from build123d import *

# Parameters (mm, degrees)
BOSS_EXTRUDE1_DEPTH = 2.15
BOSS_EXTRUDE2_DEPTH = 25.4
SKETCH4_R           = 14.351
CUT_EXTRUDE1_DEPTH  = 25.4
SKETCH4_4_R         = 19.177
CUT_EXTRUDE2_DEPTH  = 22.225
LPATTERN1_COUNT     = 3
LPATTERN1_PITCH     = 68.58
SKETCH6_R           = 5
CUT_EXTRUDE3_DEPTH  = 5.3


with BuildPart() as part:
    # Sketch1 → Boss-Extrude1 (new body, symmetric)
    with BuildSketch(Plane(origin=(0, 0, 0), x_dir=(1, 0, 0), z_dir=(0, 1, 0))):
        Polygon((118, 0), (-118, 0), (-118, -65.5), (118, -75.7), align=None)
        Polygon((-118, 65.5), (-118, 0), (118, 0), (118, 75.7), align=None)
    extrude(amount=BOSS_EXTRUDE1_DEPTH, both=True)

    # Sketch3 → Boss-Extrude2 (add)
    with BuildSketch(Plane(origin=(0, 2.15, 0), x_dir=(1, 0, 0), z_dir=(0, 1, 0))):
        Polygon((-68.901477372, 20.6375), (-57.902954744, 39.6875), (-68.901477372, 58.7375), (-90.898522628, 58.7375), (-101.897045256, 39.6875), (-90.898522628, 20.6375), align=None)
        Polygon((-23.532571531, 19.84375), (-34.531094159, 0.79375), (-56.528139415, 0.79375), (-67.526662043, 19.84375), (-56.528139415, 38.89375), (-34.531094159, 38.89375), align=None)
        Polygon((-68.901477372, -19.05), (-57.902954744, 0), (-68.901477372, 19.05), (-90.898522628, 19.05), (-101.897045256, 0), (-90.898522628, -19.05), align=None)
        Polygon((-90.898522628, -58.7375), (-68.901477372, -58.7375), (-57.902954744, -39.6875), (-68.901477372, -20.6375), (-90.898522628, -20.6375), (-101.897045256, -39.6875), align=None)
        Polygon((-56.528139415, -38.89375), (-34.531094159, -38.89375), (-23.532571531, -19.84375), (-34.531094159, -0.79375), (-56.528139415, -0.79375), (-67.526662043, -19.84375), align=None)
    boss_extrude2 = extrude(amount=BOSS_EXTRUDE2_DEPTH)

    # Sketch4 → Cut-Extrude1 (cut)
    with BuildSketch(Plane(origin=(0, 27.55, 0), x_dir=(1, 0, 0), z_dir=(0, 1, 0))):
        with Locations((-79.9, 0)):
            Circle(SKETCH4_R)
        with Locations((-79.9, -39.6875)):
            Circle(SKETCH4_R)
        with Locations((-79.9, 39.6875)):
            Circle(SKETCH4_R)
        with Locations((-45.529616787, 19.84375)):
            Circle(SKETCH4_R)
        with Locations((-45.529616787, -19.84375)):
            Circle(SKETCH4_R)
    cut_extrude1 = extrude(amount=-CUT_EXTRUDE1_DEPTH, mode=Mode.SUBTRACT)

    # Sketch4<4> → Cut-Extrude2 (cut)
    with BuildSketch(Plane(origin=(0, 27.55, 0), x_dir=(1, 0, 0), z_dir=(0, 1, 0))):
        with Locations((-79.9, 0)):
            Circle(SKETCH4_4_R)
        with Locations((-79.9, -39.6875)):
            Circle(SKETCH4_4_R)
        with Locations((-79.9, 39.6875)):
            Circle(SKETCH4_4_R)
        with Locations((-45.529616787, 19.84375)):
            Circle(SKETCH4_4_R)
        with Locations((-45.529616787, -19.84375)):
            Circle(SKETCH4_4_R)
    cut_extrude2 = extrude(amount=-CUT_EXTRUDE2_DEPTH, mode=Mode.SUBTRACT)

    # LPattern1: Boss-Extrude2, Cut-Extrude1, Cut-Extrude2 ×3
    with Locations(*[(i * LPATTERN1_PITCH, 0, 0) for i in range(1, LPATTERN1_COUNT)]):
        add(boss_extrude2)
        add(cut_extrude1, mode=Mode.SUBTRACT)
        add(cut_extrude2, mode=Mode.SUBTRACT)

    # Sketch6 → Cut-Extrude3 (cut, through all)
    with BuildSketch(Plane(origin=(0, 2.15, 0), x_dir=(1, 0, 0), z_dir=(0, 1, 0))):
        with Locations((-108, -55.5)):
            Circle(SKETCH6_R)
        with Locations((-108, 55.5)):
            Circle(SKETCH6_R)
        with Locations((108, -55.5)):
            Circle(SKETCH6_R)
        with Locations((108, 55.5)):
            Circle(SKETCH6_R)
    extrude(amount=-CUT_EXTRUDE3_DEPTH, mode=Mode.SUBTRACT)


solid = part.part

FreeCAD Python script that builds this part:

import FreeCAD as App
import Part
import Sketcher
Q = App.Units.Quantity

doc = App.newDocument("Part")
body = doc.addObject("PartDesign::Body", "Body")

sketch1 = body.newObject("Sketcher::SketchObject", "Sketch")
sketch1.AttachmentSupport = (doc.getObject("XZ_Plane"), [""])
sketch1.MapMode = "FlatFace"
sketch1.addGeometry([
    Part.LineSegment(App.Vector(-118, 66, 0), App.Vector(118, 76, 0)),
    Part.LineSegment(App.Vector(118, 76, 0), App.Vector(118, -76, 0)),
    Part.LineSegment(App.Vector(118, -76, 0), App.Vector(-118, -66, 0)),
    Part.LineSegment(App.Vector(-118, -66, 0), App.Vector(-118, 66, 0)),
], False)
sketch1.addConstraint([
    Sketcher.Constraint("Coincident", 0, 2, 1, 1),
    Sketcher.Constraint("Coincident", 1, 2, 2, 1),
    Sketcher.Constraint("Coincident", 2, 2, 3, 1),
    Sketcher.Constraint("Coincident", 3, 2, 0, 1),
    Sketcher.Constraint("Vertical", 1),
    Sketcher.Constraint("Vertical", 3),
    Sketcher.Constraint("Equal", 0, 2),
    Sketcher.Constraint("DistanceY", 3, 1, 3, 2, Q("131 mm")),
    Sketcher.Constraint("DistanceY", 1, 2, 1, 1, Q("151.4 mm")),
    Sketcher.Constraint("DistanceX", -1, 1, 0, 2, Q("118 mm")),
    Sketcher.Constraint("DistanceX", 2, 2, -1, 1, Q("118 mm")),
    Sketcher.Constraint("DistanceY", -1, 1, 0, 2, Q("75.7 mm")),
])
pad1 = body.newObject("PartDesign::Pad", "Pad")
pad1.Profile = sketch1
pad1.Length = 4.3
pad1.Midplane = True

sketch2 = body.newObject("Sketcher::SketchObject", "Sketch001")
sketch2.AttachmentSupport = (doc.getObject("XZ_Plane"), [""])
sketch2.MapMode = "FlatFace"
sketch2.AttachmentOffset = App.Placement(App.Vector(0, 0, -2.15), App.Rotation())
sketch2.addGeometry([
    Part.LineSegment(App.Vector(-69, -21, 0), App.Vector(-58, -40, 0)),
    Part.LineSegment(App.Vector(-58, -40, 0), App.Vector(-69, -59, 0)),
    Part.LineSegment(App.Vector(-69, -59, 0), App.Vector(-91, -59, 0)),
    Part.LineSegment(App.Vector(-91, -59, 0), App.Vector(-102, -40, 0)),
    Part.LineSegment(App.Vector(-102, -40, 0), App.Vector(-91, -21, 0)),
    Part.LineSegment(App.Vector(-91, -21, 0), App.Vector(-69, -21, 0)),
    Part.LineSegment(App.Vector(-35, -1, 0), App.Vector(-24, -20, 0)),
    Part.LineSegment(App.Vector(-24, -20, 0), App.Vector(-35, -39, 0)),
    Part.LineSegment(App.Vector(-35, -39, 0), App.Vector(-57, -39, 0)),
    Part.LineSegment(App.Vector(-57, -39, 0), App.Vector(-68, -20, 0)),
    Part.LineSegment(App.Vector(-68, -20, 0), App.Vector(-57, -1, 0)),
    Part.LineSegment(App.Vector(-57, -1, 0), App.Vector(-35, -1, 0)),
    Part.LineSegment(App.Vector(-69, 19, 0), App.Vector(-58, 0, 0)),
    Part.LineSegment(App.Vector(-58, 0, 0), App.Vector(-69, -19, 0)),
    Part.LineSegment(App.Vector(-69, -19, 0), App.Vector(-91, -19, 0)),
    Part.LineSegment(App.Vector(-91, -19, 0), App.Vector(-102, 0, 0)),
    Part.LineSegment(App.Vector(-102, 0, 0), App.Vector(-91, 19, 0)),
    Part.LineSegment(App.Vector(-91, 19, 0), App.Vector(-69, 19, 0)),
    Part.LineSegment(App.Vector(-91, 59, 0), App.Vector(-69, 59, 0)),
    Part.LineSegment(App.Vector(-69, 59, 0), App.Vector(-58, 40, 0)),
    Part.LineSegment(App.Vector(-58, 40, 0), App.Vector(-69, 21, 0)),
    Part.LineSegment(App.Vector(-69, 21, 0), App.Vector(-91, 21, 0)),
    Part.LineSegment(App.Vector(-91, 21, 0), App.Vector(-102, 40, 0)),
    Part.LineSegment(App.Vector(-102, 40, 0), App.Vector(-91, 59, 0)),
    Part.LineSegment(App.Vector(-57, 39, 0), App.Vector(-35, 39, 0)),
    Part.LineSegment(App.Vector(-35, 39, 0), App.Vector(-24, 20, 0)),
    Part.LineSegment(App.Vector(-24, 20, 0), App.Vector(-35, 1, 0)),
    Part.LineSegment(App.Vector(-35, 1, 0), App.Vector(-57, 1, 0)),
    Part.LineSegment(App.Vector(-57, 1, 0), App.Vector(-68, 20, 0)),
    Part.LineSegment(App.Vector(-68, 20, 0), App.Vector(-57, 39, 0)),
], False)
sketch2.addConstraint([
    Sketcher.Constraint("Coincident", 0, 2, 1, 1),
    Sketcher.Constraint("Coincident", 1, 2, 2, 1),
    Sketcher.Constraint("Coincident", 2, 2, 3, 1),
    Sketcher.Constraint("Coincident", 3, 2, 4, 1),
    Sketcher.Constraint("Coincident", 4, 2, 5, 1),
    Sketcher.Constraint("Coincident", 5, 2, 0, 1),
    Sketcher.Constraint("Coincident", 6, 2, 7, 1),
    Sketcher.Constraint("Coincident", 7, 2, 8, 1),
    Sketcher.Constraint("Coincident", 8, 2, 9, 1),
    Sketcher.Constraint("Coincident", 9, 2, 10, 1),
    Sketcher.Constraint("Coincident", 10, 2, 11, 1),
    Sketcher.Constraint("Coincident", 11, 2, 6, 1),
    Sketcher.Constraint("Coincident", 12, 2, 13, 1),
    Sketcher.Constraint("Coincident", 13, 2, 14, 1),
    Sketcher.Constraint("Coincident", 14, 2, 15, 1),
    Sketcher.Constraint("Coincident", 15, 2, 16, 1),
    Sketcher.Constraint("Coincident", 16, 2, 17, 1),
    Sketcher.Constraint("Coincident", 17, 2, 12, 1),
    Sketcher.Constraint("Coincident", 18, 2, 19, 1),
    Sketcher.Constraint("Coincident", 19, 2, 20, 1),
    Sketcher.Constraint("Coincident", 20, 2, 21, 1),
    Sketcher.Constraint("Coincident", 21, 2, 22, 1),
    Sketcher.Constraint("Coincident", 22, 2, 23, 1),
    Sketcher.Constraint("Coincident", 23, 2, 18, 1),
    Sketcher.Constraint("Coincident", 24, 2, 25, 1),
    Sketcher.Constraint("Coincident", 25, 2, 26, 1),
    Sketcher.Constraint("Coincident", 26, 2, 27, 1),
    Sketcher.Constraint("Coincident", 27, 2, 28, 1),
    Sketcher.Constraint("Coincident", 28, 2, 29, 1),
    Sketcher.Constraint("Coincident", 29, 2, 24, 1),
    Sketcher.Constraint("Horizontal", 2),
    Sketcher.Constraint("Horizontal", 5),
    Sketcher.Constraint("Horizontal", 8),
    Sketcher.Constraint("Horizontal", 11),
    Sketcher.Constraint("Horizontal", 14),
    Sketcher.Constraint("Horizontal", 17),
    Sketcher.Constraint("Horizontal", 18),
    Sketcher.Constraint("Horizontal", 21),
    Sketcher.Constraint("Horizontal", 24),
    Sketcher.Constraint("Horizontal", 27),
    Sketcher.Constraint("Symmetric", 14, 2, 16, 2, -1),
    Sketcher.Constraint("Symmetric", 1, 2, 18, 2, -1),
    Sketcher.Constraint("Symmetric", 0, 2, 19, 2, -1),
    Sketcher.Constraint("Symmetric", 5, 2, 20, 2, -1),
    Sketcher.Constraint("Symmetric", 3, 2, 22, 2, -1),
    Sketcher.Constraint("Symmetric", 7, 2, 24, 2, -1),
    Sketcher.Constraint("Symmetric", 6, 2, 25, 2, -1),
    Sketcher.Constraint("Symmetric", 11, 2, 26, 2, -1),
    Sketcher.Constraint("Symmetric", 9, 2, 28, 2, -1),
    Sketcher.Constraint("PointOnObject", 12, 2, -1),
    Sketcher.Constraint("PointOnObject", 15, 2, -1),
    Sketcher.Constraint("Parallel", 0, 3),
    Sketcher.Constraint("Parallel", 1, 4),
    Sketcher.Constraint("Parallel", 3, 6),
    Sketcher.Constraint("Parallel", 4, 7),
    Sketcher.Constraint("Parallel", 6, 9),
    Sketcher.Constraint("Parallel", 7, 10),
    Sketcher.Constraint("Parallel", 9, 12),
    Sketcher.Constraint("Parallel", 10, 13),
    Sketcher.Constraint("Parallel", 12, 15),
    Sketcher.Constraint("Parallel", 13, 16),
    Sketcher.Constraint("Parallel", 19, 22),
    Sketcher.Constraint("Parallel", 20, 23),
    Sketcher.Constraint("Parallel", 25, 28),
    Sketcher.Constraint("Parallel", 26, 29),
    Sketcher.Constraint("Horizontal", 0, 2, 3, 2),
    Sketcher.Constraint("Horizontal", 6, 2, 9, 2),
    Sketcher.Constraint("Vertical", 2, 2, 4, 2),
    Sketcher.Constraint("Vertical", 8, 2, 10, 2),
    Sketcher.Constraint("Vertical", 0, 2, 12, 2),
    Sketcher.Constraint("Vertical", 5, 2, 13, 2),
    Sketcher.Constraint("Vertical", 4, 2, 14, 2),
    Sketcher.Constraint("Equal", 5, 8),
    Sketcher.Constraint("Equal", 4, 6),
    Sketcher.Constraint("Angle", 0, Q("-60 deg")),
    Sketcher.Constraint("DistanceY", 2, 2, 4, 2, Q("38.1 mm")),
    Sketcher.Constraint("DistanceY", 0, 2, -1, 1, Q("39.6875 mm")),
    Sketcher.Constraint("DistanceY", 11, 2, 24, 2, Q("39.6875 mm")),
    Sketcher.Constraint("DistanceX", 2, 2, 2, 1, Q("21.997045 mm")),
    Sketcher.Constraint("DistanceX", 6, 2, -1, 1, Q("23.532572 mm")),
    Sketcher.Constraint("DistanceX", 4, 2, 6, 2, Q("67.365951 mm")),
])
pad2 = body.newObject("PartDesign::Pad", "Pad001")
pad2.Profile = sketch2
pad2.Length = 25.4
pad2.Reversed = True

sketch3 = body.newObject("Sketcher::SketchObject", "Sketch002")
sketch3.AttachmentSupport = (doc.getObject("XZ_Plane"), [""])
sketch3.MapMode = "FlatFace"
sketch3.AttachmentOffset = App.Placement(App.Vector(0, 0, -27.55), App.Rotation())
sketch3.addGeometry([
    Part.Circle(App.Vector(-80, 0, 0), App.Vector(0, 0, 1), 14),
    Part.Circle(App.Vector(-80, 40, 0), App.Vector(0, 0, 1), 14),
    Part.Circle(App.Vector(-80, -40, 0), App.Vector(0, 0, 1), 14),
    Part.Circle(App.Vector(-46, -20, 0), App.Vector(0, 0, 1), 14),
    Part.Circle(App.Vector(-46, 20, 0), App.Vector(0, 0, 1), 14),
], False)
sketch3.addConstraint([
    Sketcher.Constraint("Equal", 0, 1),
    Sketcher.Constraint("Equal", 1, 2),
    Sketcher.Constraint("Equal", 2, 3),
    Sketcher.Constraint("Equal", 3, 4),
    Sketcher.Constraint("Symmetric", 1, 3, 2, 3, -1),
    Sketcher.Constraint("Symmetric", 3, 3, 4, 3, -1),
    Sketcher.Constraint("PointOnObject", 0, 3, -1),
    Sketcher.Constraint("Vertical", 0, 3, 1, 3),
    Sketcher.Constraint("Diameter", 0, Q("28.702 mm")),
    Sketcher.Constraint("DistanceX", 0, 3, -1, 1, Q("79.9 mm")),
    Sketcher.Constraint("DistanceY", 2, 3, 1, 3, Q("79.375 mm")),
    Sketcher.Constraint("DistanceY", 3, 3, 4, 3, Q("39.6875 mm")),
    Sketcher.Constraint("DistanceX", 3, 3, -1, 1, Q("45.529617 mm")),
])
pocket1 = body.newObject("PartDesign::Pocket", "Pocket")
pocket1.Profile = sketch3
pocket1.Length = 25.4
pocket1.Reversed = True

sketch4 = body.newObject("Sketcher::SketchObject", "Sketch003")
sketch4.AttachmentSupport = (doc.getObject("XZ_Plane"), [""])
sketch4.MapMode = "FlatFace"
sketch4.AttachmentOffset = App.Placement(App.Vector(0, 0, -27.55), App.Rotation())
sketch4.addGeometry([
    Part.Circle(App.Vector(-80, 0, 0), App.Vector(0, 0, 1), 19),
    Part.Circle(App.Vector(-80, 40, 0), App.Vector(0, 0, 1), 19),
    Part.Circle(App.Vector(-80, -40, 0), App.Vector(0, 0, 1), 19),
    Part.Circle(App.Vector(-46, -20, 0), App.Vector(0, 0, 1), 19),
    Part.Circle(App.Vector(-46, 20, 0), App.Vector(0, 0, 1), 19),
], False)
sketch4.addConstraint([
    Sketcher.Constraint("Equal", 0, 1),
    Sketcher.Constraint("Equal", 1, 2),
    Sketcher.Constraint("Equal", 2, 3),
    Sketcher.Constraint("Equal", 3, 4),
    Sketcher.Constraint("Symmetric", 1, 3, 2, 3, -1),
    Sketcher.Constraint("Symmetric", 3, 3, 4, 3, -1),
    Sketcher.Constraint("PointOnObject", 0, 3, -1),
    Sketcher.Constraint("Vertical", 0, 3, 1, 3),
    Sketcher.Constraint("Diameter", 0, Q("38.354 mm")),
    Sketcher.Constraint("DistanceX", 0, 3, -1, 1, Q("79.9 mm")),
    Sketcher.Constraint("DistanceY", 2, 3, 1, 3, Q("79.375 mm")),
    Sketcher.Constraint("DistanceY", 3, 3, 4, 3, Q("39.6875 mm")),
    Sketcher.Constraint("DistanceX", 3, 3, -1, 1, Q("45.529617 mm")),
])
pocket2 = body.newObject("PartDesign::Pocket", "Pocket001")
pocket2.Profile = sketch4
pocket2.Length = 22.225
pocket2.Reversed = True
doc.recompute()

linearpattern = body.newObject("PartDesign::LinearPattern", "LinearPattern")
linearpattern.Originals = [pad2, pocket1, pocket2]
linearpattern.Direction = (doc.getObject("X_Axis"), [""])
linearpattern.Mode = "offset"
linearpattern.Offset = 68.58
linearpattern.Occurrences = 3
body.Tip = linearpattern

sketch5 = body.newObject("Sketcher::SketchObject", "Sketch004")
sketch5.AttachmentSupport = (doc.getObject("XZ_Plane"), [""])
sketch5.MapMode = "FlatFace"
sketch5.AttachmentOffset = App.Placement(App.Vector(0, 0, -2.15), App.Rotation())
sketch5.addGeometry([
    Part.Circle(App.Vector(-108, 56, 0), App.Vector(0, 0, 1), 5),
    Part.Circle(App.Vector(-108, -56, 0), App.Vector(0, 0, 1), 5),
    Part.Circle(App.Vector(108, 56, 0), App.Vector(0, 0, 1), 5),
    Part.Circle(App.Vector(108, -56, 0), App.Vector(0, 0, 1), 5),
], False)
sketch5.addConstraint([
    Sketcher.Constraint("Equal", 0, 1),
    Sketcher.Constraint("Equal", 1, 2),
    Sketcher.Constraint("Equal", 2, 3),
    Sketcher.Constraint("Symmetric", 1, 3, 2, 3, -1, 1),
    Sketcher.Constraint("Symmetric", 0, 3, 3, 3, -1, 1),
    Sketcher.Constraint("Symmetric", 0, 3, 2, 3, -2),
    Sketcher.Constraint("Diameter", 0, Q("10 mm")),
    Sketcher.Constraint("DistanceX", 0, 3, -1, 1, Q("108 mm")),
    Sketcher.Constraint("DistanceY", 1, 3, 0, 3, Q("111 mm")),
])
pocket3 = body.newObject("PartDesign::Pocket", "Pocket002")
pocket3.Profile = sketch5
pocket3.Type = "ThroughAll"
pocket3.Reversed = True

doc.recompute()
